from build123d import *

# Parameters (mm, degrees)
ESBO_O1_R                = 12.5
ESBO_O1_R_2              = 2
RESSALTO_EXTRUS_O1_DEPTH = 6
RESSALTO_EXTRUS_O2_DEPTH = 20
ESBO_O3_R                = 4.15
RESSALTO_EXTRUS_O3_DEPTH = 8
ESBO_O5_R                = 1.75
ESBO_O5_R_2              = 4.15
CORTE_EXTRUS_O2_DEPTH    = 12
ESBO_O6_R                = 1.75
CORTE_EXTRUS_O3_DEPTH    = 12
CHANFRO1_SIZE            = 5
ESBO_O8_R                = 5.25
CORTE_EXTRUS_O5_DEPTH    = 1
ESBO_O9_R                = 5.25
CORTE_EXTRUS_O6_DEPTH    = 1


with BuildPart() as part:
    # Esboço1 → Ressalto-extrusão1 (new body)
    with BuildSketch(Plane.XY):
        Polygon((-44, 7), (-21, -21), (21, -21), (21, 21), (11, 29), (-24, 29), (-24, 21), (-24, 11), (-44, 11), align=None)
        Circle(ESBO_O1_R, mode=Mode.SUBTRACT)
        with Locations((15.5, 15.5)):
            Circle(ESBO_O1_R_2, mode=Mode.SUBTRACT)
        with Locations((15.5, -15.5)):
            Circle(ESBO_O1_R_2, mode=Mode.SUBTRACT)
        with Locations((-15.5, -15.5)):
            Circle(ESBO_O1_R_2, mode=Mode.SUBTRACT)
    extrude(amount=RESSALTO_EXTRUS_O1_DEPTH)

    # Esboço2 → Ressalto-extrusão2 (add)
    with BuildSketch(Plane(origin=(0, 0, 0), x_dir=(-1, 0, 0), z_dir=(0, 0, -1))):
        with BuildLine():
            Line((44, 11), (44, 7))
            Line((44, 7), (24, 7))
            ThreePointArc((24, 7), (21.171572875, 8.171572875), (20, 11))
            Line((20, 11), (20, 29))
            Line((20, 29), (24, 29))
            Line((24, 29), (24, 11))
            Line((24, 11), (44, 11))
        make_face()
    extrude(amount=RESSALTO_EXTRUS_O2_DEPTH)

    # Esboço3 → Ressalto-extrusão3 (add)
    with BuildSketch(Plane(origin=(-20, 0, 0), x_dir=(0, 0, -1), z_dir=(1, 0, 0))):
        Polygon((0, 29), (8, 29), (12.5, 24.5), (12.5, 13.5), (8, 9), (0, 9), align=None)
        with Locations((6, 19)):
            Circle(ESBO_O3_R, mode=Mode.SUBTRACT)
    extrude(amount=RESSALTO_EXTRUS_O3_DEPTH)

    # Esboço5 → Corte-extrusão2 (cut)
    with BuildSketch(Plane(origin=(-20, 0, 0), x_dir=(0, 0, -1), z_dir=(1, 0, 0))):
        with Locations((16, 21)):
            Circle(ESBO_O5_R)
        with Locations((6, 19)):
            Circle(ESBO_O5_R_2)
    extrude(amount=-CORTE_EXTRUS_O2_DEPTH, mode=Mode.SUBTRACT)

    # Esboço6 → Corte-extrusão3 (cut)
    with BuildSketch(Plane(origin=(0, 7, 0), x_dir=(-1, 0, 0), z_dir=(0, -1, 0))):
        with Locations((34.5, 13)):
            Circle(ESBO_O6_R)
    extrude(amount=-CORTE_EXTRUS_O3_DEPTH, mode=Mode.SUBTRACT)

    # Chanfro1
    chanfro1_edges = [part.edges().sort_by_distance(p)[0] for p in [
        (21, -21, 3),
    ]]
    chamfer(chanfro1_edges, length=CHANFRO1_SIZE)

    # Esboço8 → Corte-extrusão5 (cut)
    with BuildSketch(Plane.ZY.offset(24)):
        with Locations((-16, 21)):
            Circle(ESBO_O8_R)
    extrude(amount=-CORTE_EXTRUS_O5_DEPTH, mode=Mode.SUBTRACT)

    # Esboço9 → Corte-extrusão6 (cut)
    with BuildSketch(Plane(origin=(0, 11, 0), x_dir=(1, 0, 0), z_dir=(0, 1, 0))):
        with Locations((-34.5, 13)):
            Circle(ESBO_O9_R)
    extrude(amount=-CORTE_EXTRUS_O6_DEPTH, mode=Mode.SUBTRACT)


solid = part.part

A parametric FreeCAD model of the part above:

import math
import FreeCAD as App
import Part
import Sketcher
Q = App.Units.Quantity


def edges_at(feature, points):
    """Names of the edges that pass closest to the given points."""
    edges = feature.Shape.Edges
    near = lambda p: min(range(len(edges)), key=lambda i: edges[i].distToShape(Part.Vertex(*p))[0])
    return sorted({f"Edge{near(p) + 1}" for p in points})

doc = App.newDocument("Part")
params = doc.addObject("Spreadsheet::Sheet", "Params")
for row, (alias, value) in enumerate([
    ("sketch1_diameter", "4 mm"),
    ("sketch1_diameter2", "25 mm"),
    ("sketch1_width", "42 mm"),
    ("sketch1_width2", "35 mm"),
    ("sketch1_width3", "20 mm"),
    ("pad1_length", "6 mm"),
    ("sketch2_radius", "4 mm"),
    ("sketch2_width", "20 mm"),
    ("sketch2_height", "18 mm"),
    ("pad2_length", "20 mm"),
    ("sketch3_diameter", "8.3 mm"),
    ("sketch3_width", "20 mm"),
    ("sketch3_width2", "11 mm"),
    ("sketch3_height", "8 mm"),
    ("pad3_length", "8 mm"),
    ("sketch4_diameter", "3.5 mm"),
    ("sketch4_diameter2", "8.3 mm"),
    ("pocket1_length", "12 mm"),
    ("sketch5_diameter", "3.5 mm"),
    ("pocket2_length", "12 mm"),
    ("chamfer_size", "5 mm"),
    ("sketch6_diameter", "10.5 mm"),
    ("pocket3_length", "1 mm"),
    ("sketch7_diameter", "10.5 mm"),
    ("pocket4_length", "1 mm"),
], start=1):
    params.set(f"A{row}", alias)
    params.set(f"B{row}", "=" + value)
    params.setAlias(f"B{row}", alias)

body = doc.addObject("PartDesign::Body", "Body")

sketch1 = doc.addObject("Sketcher::SketchObject", "Sketch")
body.addObject(sketch1)
sketch1.AttachmentSupport = (doc.XY_Plane, [""])
sketch1.MapMode = "FlatFace"
sketch1.addGeometry(Part.LineSegment(App.Vector(-44, 7, 0), App.Vector(-21, -21, 0)), False)
sketch1.addGeometry(Part.LineSegment(App.Vector(-21, -21, 0), App.Vector(21, -21, 0)), False)
sketch1.addGeometry(Part.LineSegment(App.Vector(21, -21, 0), App.Vector(21, 21, 0)), False)
sketch1.addGeometry(Part.LineSegment(App.Vector(21, 21, 0), App.Vector(11, 29, 0)), False)
sketch1.addGeometry(Part.LineSegment(App.Vector(11, 29, 0), App.Vector(-24, 29, 0)), False)
sketch1.addGeometry(Part.LineSegment(App.Vector(-24, 29, 0), App.Vector(-24, 11, 0)), False)
sketch1.addGeometry(Part.LineSegment(App.Vector(-24, 11, 0), App.Vector(-44, 11, 0)), False)
sketch1.addGeometry(Part.LineSegment(App.Vector(-44, 11, 0), App.Vector(-44, 7, 0)), False)
sketch1.addGeometry(Part.Circle(App.Vector(-15.5, -15.5, 0), App.Vector(0, 0, 1), 2), False)
sketch1.addGeometry(Part.Circle(App.Vector(15.5, -15.5, 0), App.Vector(0, 0, 1), 2), False)
sketch1.addGeometry(Part.Circle(App.Vector(0, 0, 0), App.Vector(0, 0, 1), 12.5), False)
sketch1.addGeometry(Part.Circle(App.Vector(15.5, 15.5, 0), App.Vector(0, 0, 1), 2), False)
sketch1.addConstraint(Sketcher.Constraint("Coincident", 0, 2, 1, 1))
sketch1.addConstraint(Sketcher.Constraint("Coincident", 1, 2, 2, 1))
sketch1.addConstraint(Sketcher.Constraint("Coincident", 2, 2, 3, 1))
sketch1.addConstraint(Sketcher.Constraint("Coincident", 3, 2, 4, 1))
sketch1.addConstraint(Sketcher.Constraint("Coincident", 4, 2, 5, 1))
sketch1.addConstraint(Sketcher.Constraint("Coincident", 5, 2, 6, 1))
sketch1.addConstraint(Sketcher.Constraint("Coincident", 6, 2, 7, 1))
sketch1.addConstraint(Sketcher.Constraint("Coincident", 7, 2, 0, 1))
sketch1.addConstraint(Sketcher.Constraint("Horizontal", 1))
sketch1.addConstraint(Sketcher.Constraint("Vertical", 2))
sketch1.addConstraint(Sketcher.Constraint("Horizontal", 4))
sketch1.addConstraint(Sketcher.Constraint("Vertical", 5))
sketch1.addConstraint(Sketcher.Constraint("Horizontal", 6))
sketch1.addConstraint(Sketcher.Constraint("Vertical", 7))
sketch1.addConstraint(Sketcher.Constraint("Coincident", 10, 3, -1, 1))
sketch1.addConstraint(Sketcher.Constraint("Equal", 8, 9))
sketch1.addConstraint(Sketcher.Constraint("Equal", 9, 11))
sketch1.addConstraint(Sketcher.Constraint("Symmetric", 8, 3, 11, 3, -1, 1))
sketch1.addConstraint(Sketcher.Constraint("Symmetric", 0, 2, 2, 2, -1, 1))
sketch1.addConstraint(Sketcher.Constraint("Symmetric", 8, 3, 9, 3, -2))
sketch1.addConstraint(Sketcher.Constraint("Equal", 1, 2))
sketch1.addConstraint(Sketcher.Constraint("Diameter", 8, Q("4 mm")))
sketch1.addConstraint(Sketcher.Constraint("Diameter", 10, Q("25 mm")))
sketch1.addConstraint(Sketcher.Constraint("DistanceX", 1, 1, 1, 2, Q("42 mm")))
sketch1.addConstraint(Sketcher.Constraint("DistanceX", 4, 2, 4, 1, Q("35 mm")))
sketch1.addConstraint(Sketcher.Constraint("DistanceX", 6, 2, 6, 1, Q("20 mm")))
sketch1.addConstraint(Sketcher.Constraint("DistanceY", 5, 2, 5, 1, Q("18 mm")))
sketch1.addConstraint(Sketcher.Constraint("DistanceY", 7, 2, 7, 1, Q("4 mm")))
sketch1.addConstraint(Sketcher.Constraint("DistanceX", -1, 1, 3, 2, Q("11 mm")))
sketch1.addConstraint(Sketcher.Constraint("DistanceY", -1, 1, 3, 2, Q("29 mm")))
sketch1.addConstraint(Sketcher.Constraint("DistanceX", 8, 3, 9, 3, Q("31 mm")))
sketch1.addConstraint(Sketcher.Constraint("DistanceY", 9, 3, 11, 3, Q("31 mm")))
sketch1.setExpression("Constraints[21]", "Params.sketch1_diameter")
sketch1.setExpression("Constraints[22]", "Params.sketch1_diameter2")
sketch1.setExpression("Constraints[23]", "Params.sketch1_width")
sketch1.setExpression("Constraints[24]", "Params.sketch1_width2")
sketch1.setExpression("Constraints[25]", "Params.sketch1_width3")
pad1 = doc.addObject("PartDesign::Pad", "Pad")
body.addObject(pad1)
pad1.Profile = sketch1
pad1.setExpression("Length", "Params.pad1_length")

sketch2 = doc.addObject("Sketcher::SketchObject", "Sketch001")
body.addObject(sketch2)
sketch2.AttachmentSupport = (doc.XY_Plane, [""])
sketch2.MapMode = "FlatFace"
sketch2.addGeometry(Part.LineSegment(App.Vector(-44, 7, 0), App.Vector(-44, 11, 0)), False)
sketch2.addGeometry(Part.LineSegment(App.Vector(-44, 11, 0), App.Vector(-24, 11, 0)), False)
sketch2.addGeometry(Part.LineSegment(App.Vector(-24, 11, 0), App.Vector(-24, 29, 0)), False)
sketch2.addGeometry(Part.LineSegment(App.Vector(-24, 29, 0), App.Vector(-20, 29, 0)), False)
sketch2.addGeometry(Part.LineSegment(App.Vector(-20, 29, 0), App.Vector(-20, 11, 0)), False)
sketch2.addGeometry(Part.ArcOfCircle(Part.Circle(App.Vector(-24, 11, 0), App.Vector(0, 0, 1), 4), math.radians(-90), math.radians(0)), False)
sketch2.addGeometry(Part.LineSegment(App.Vector(-24, 7, 0), App.Vector(-44, 7, 0)), False)
sketch2.addConstraint(Sketcher.Constraint("Coincident", 0, 2, 1, 1))
sketch2.addConstraint(Sketcher.Constraint("Coincident", 1, 2, 2, 1))
sketch2.addConstraint(Sketcher.Constraint("Coincident", 2, 2, 3, 1))
sketch2.addConstraint(Sketcher.Constraint("Coincident", 3, 2, 4, 1))
sketch2.addConstraint(Sketcher.Constraint("Tangent", 4, 2, 5, 2))
sketch2.addConstraint(Sketcher.Constraint("Tangent", 5, 1, 6, 1))
sketch2.addConstraint(Sketcher.Constraint("Coincident", 6, 2, 0, 1))
sketch2.addConstraint(Sketcher.Constraint("Vertical", 0))
sketch2.addConstraint(Sketcher.Constraint("Horizontal", 1))
sketch2.addConstraint(Sketcher.Constraint("Vertical", 2))
sketch2.addConstraint(Sketcher.Constraint("Horizontal", 3))
sketch2.addConstraint(Sketcher.Constraint("Vertical", 4))
sketch2.addConstraint(Sketcher.Constraint("Horizontal", 6))
sketch2.addConstraint(Sketcher.Constraint("Coincident", 1, 2, 5, 3))
sketch2.addConstraint(Sketcher.Constraint("Radius", 5, Q("4 mm")))
sketch2.addConstraint(Sketcher.Constraint("DistanceX", 1, 1, 1, 2, Q("20 mm")))
sketch2.addConstraint(Sketcher.Constraint("DistanceY", 2, 1, 2, 2, Q("18 mm")))
sketch2.addConstraint(Sketcher.Constraint("DistanceX", 5, 3, -1, 1, Q("24 mm")))
sketch2.addConstraint(Sketcher.Constraint("DistanceY", -1, 1, 5, 3, Q("11 mm")))
sketch2.setExpression("Constraints[14]", "Params.sketch2_radius")
sketch2.setExpression("Constraints[15]", "Params.sketch2_width")
sketch2.setExpression("Constraints[16]", "Params.sketch2_height")
pad2 = doc.addObject("PartDesign::Pad", "Pad001")
body.addObject(pad2)
pad2.Profile = sketch2
pad2.setExpression("Length", "Params.pad2_length")
pad2.Reversed = True

sketch3 = doc.addObject("Sketcher::SketchObject", "Sketch002")
body.addObject(sketch3)
sketch3.AttachmentSupport = (doc.YZ_Plane, [""])
sketch3.MapMode = "FlatFace"
sketch3.AttachmentOffset = App.Placement(App.Vector(0, 0, -20), App.Rotation())
sketch3.addGeometry(Part.LineSegment(App.Vector(29, -8, 0), App.Vector(29, 0, 0)), False)
sketch3.addGeometry(Part.LineSegment(App.Vector(29, 0, 0), App.Vector(9, 0, 0)), False)
sketch3.addGeometry(Part.LineSegment(App.Vector(9, 0, 0), App.Vector(9, -8, 0)), False)
sketch3.addGeometry(Part.LineSegment(App.Vector(9, -8, 0), App.Vector(13.5, -12.5, 0)), False)
sketch3.addGeometry(Part.LineSegment(App.Vector(13.5, -12.5, 0), App.Vector(24.5, -12.5, 0)), False)
sketch3.addGeometry(Part.LineSegment(App.Vector(24.5, -12.5, 0), App.Vector(29, -8, 0)), False)
sketch3.addGeometry(Part.Circle(App.Vector(19, -6, 0), App.Vector(0, 0, 1), 4.2), False)
sketch3.addConstraint(Sketcher.Constraint("Coincident", 0, 2, 1, 1))
sketch3.addConstraint(Sketcher.Constraint("Coincident", 1, 2, 2, 1))
sketch3.addConstraint(Sketcher.Constraint("Coincident", 2, 2, 3, 1))
sketch3.addConstraint(Sketcher.Constraint("Coincident", 3, 2, 4, 1))
sketch3.addConstraint(Sketcher.Constraint("Coincident", 4, 2, 5, 1))
sketch3.addConstraint(Sketcher.Constraint("Coincident", 5, 2, 0, 1))
sketch3.addConstraint(Sketcher.Constraint("Vertical", 0))
sketch3.addConstraint(Sketcher.Constraint("Horizontal", 1))
sketch3.addConstraint(Sketcher.Constraint("Vertical", 2))
sketch3.addConstraint(Sketcher.Constraint("Horizontal", 4))
sketch3.addConstraint(Sketcher.Constraint("PointOnObject", 0, 2, -1))
sketch3.addConstraint(Sketcher.Constraint("Perpendicular", 3, 5))
sketch3.addConstraint(Sketcher.Constraint("Horizontal", 2, 2, 5, 2))
sketch3.addConstraint(Sketcher.Constraint("Equal", 3, 5))
sketch3.addConstraint(Sketcher.Constraint("Diameter", 6, Q("8.3 mm")))
sketch3.addConstraint(Sketcher.Constraint("DistanceX", 1, 2, 1, 1, Q("20 mm")))
sketch3.addConstraint(Sketcher.Constraint("DistanceX", 4, 1, 4, 2, Q("11 mm")))
sketch3.addConstraint(Sketcher.Constraint("DistanceY", 0, 1, 0, 2, Q("8 mm")))
sketch3.addConstraint(Sketcher.Constraint("DistanceX", -1, 1, 6, 3, Q("19 mm")))
sketch3.addConstraint(Sketcher.Constraint("DistanceY", 6, 3, -1, 1, Q("6 mm")))
sketch3.addConstraint(Sketcher.Constraint("DistanceX", -1, 1, 0, 2, Q("29 mm")))
sketch3.setExpression("Constraints[14]", "Params.sketch3_diameter")
sketch3.setExpression("Constraints[15]", "Params.sketch3_width")
sketch3.setExpression("Constraints[16]", "Params.sketch3_width2")
sketch3.setExpression("Constraints[17]", "Params.sketch3_height")
pad3 = doc.addObject("PartDesign::Pad", "Pad002")
body.addObject(pad3)
pad3.Profile = sketch3
pad3.setExpression("Length", "Params.pad3_length")

sketch4 = doc.addObject("Sketcher::SketchObject", "Sketch003")
body.addObject(sketch4)
sketch4.AttachmentSupport = (doc.YZ_Plane, [""])
sketch4.MapMode = "FlatFace"
sketch4.AttachmentOffset = App.Placement(App.Vector(0, 0, -20), App.Rotation())
sketch4.addGeometry(Part.Circle(App.Vector(21, -16, 0), App.Vector(0, 0, 1), 1.8), False)
sketch4.addGeometry(Part.Circle(App.Vector(19, -6, 0), App.Vector(0, 0, 1), 4.2), False)
sketch4.addConstraint(Sketcher.Constraint("Diameter", 0, Q("3.5 mm")))
sketch4.addConstraint(Sketcher.Constraint("Diameter", 1, Q("8.3 mm")))
sketch4.addConstraint(Sketcher.Constraint("DistanceX", -1, 1, 0, 3, Q("21 mm")))
sketch4.addConstraint(Sketcher.Constraint("DistanceY", 0, 3, -1, 1, Q("16 mm")))
sketch4.addConstraint(Sketcher.Constraint("DistanceX", -1, 1, 1, 3, Q("19 mm")))
sketch4.addConstraint(Sketcher.Constraint("DistanceY", 1, 3, -1, 1, Q("6 mm")))
sketch4.setExpression("Constraints[0]", "Params.sketch4_diameter")
sketch4.setExpression("Constraints[1]", "Params.sketch4_diameter2")
pocket1 = doc.addObject("PartDesign::Pocket", "Pocket")
body.addObject(pocket1)
pocket1.Profile = sketch4
pocket1.setExpression("Length", "Params.pocket1_length")

sketch5 = doc.addObject("Sketcher::SketchObject", "Sketch004")
body.addObject(sketch5)
sketch5.AttachmentSupport = (doc.XZ_Plane, [""])
sketch5.MapMode = "FlatFace"
sketch5.AttachmentOffset = App.Placement(App.Vector(0, 0, -7), App.Rotation())
sketch5.addGeometry(Part.Circle(App.Vector(-34.5, -13, 0), App.Vector(0, 0, 1), 1.8), False)
sketch5.addConstraint(Sketcher.Constraint("Diameter", 0, Q("3.5 mm")))
sketch5.addConstraint(Sketcher.Constraint("DistanceY", 0, 3, -1, 1, Q("13 mm")))
sketch5.addConstraint(Sketcher.Constraint("DistanceX", 0, 3, -1, 1, Q("34.5 mm")))
sketch5.setExpression("Constraints[0]", "Params.sketch5_diameter")
pocket2 = doc.addObject("PartDesign::Pocket", "Pocket001")
body.addObject(pocket2)
pocket2.Profile = sketch5
pocket2.setExpression("Length", "Params.pocket2_length")
doc.recompute()

chamfer = doc.addObject("PartDesign::Chamfer", "Chamfer")
body.addObject(chamfer)
chamfer.Base = (pocket2, edges_at(pocket2, [(21, -21, 3)]))
chamfer.setExpression("Size", "Params.chamfer_size")

sketch6 = doc.addObject("Sketcher::SketchObject", "Sketch005")
body.addObject(sketch6)
sketch6.AttachmentSupport = (doc.YZ_Plane, [""])
sketch6.MapMode = "FlatFace"
sketch6.AttachmentOffset = App.Placement(App.Vector(0, 0, -24), App.Rotation())
sketch6.addGeometry(Part.Circle(App.Vector(21, -16, 0), App.Vector(0, 0, 1), 5), False)
sketch6.addConstraint(Sketcher.Constraint("Diameter", 0, Q("10.5 mm")))
sketch6.addConstraint(Sketcher.Constraint("DistanceX", -1, 1, 0, 3, Q("21 mm")))
sketch6.addConstraint(Sketcher.Constraint("DistanceY", 0, 3, -1, 1, Q("16 mm")))
sketch6.setExpression("Constraints[0]", "Params.sketch6_diameter")
pocket3 = doc.addObject("PartDesign::Pocket", "Pocket002")
body.addObject(pocket3)
pocket3.Profile = sketch6
pocket3.setExpression("Length", "Params.pocket3_length")
pocket3.Reversed = True

sketch7 = doc.addObject("Sketcher::SketchObject", "Sketch006")
body.addObject(sketch7)
sketch7.AttachmentSupport = (doc.XZ_Plane, [""])
sketch7.MapMode = "FlatFace"
sketch7.AttachmentOffset = App.Placement(App.Vector(0, 0, -11), App.Rotation())
sketch7.addGeometry(Part.Circle(App.Vector(-34, -13, 0), App.Vector(0, 0, 1), 5), False)
sketch7.addConstraint(Sketcher.Constraint("Diameter", 0, Q("10.5 mm")))
sketch7.addConstraint(Sketcher.Constraint("DistanceY", 0, 3, -1, 1, Q("13 mm")))
sketch7.addConstraint(Sketcher.Constraint("DistanceX", 0, 3, -1, 1, Q("34.5 mm")))
sketch7.setExpression("Constraints[0]", "Params.sketch7_diameter")
pocket4 = doc.addObject("PartDesign::Pocket", "Pocket003")
body.addObject(pocket4)
pocket4.Profile = sketch7
pocket4.setExpression("Length", "Params.pocket4_length")
pocket4.Reversed = True

doc.recompute()
